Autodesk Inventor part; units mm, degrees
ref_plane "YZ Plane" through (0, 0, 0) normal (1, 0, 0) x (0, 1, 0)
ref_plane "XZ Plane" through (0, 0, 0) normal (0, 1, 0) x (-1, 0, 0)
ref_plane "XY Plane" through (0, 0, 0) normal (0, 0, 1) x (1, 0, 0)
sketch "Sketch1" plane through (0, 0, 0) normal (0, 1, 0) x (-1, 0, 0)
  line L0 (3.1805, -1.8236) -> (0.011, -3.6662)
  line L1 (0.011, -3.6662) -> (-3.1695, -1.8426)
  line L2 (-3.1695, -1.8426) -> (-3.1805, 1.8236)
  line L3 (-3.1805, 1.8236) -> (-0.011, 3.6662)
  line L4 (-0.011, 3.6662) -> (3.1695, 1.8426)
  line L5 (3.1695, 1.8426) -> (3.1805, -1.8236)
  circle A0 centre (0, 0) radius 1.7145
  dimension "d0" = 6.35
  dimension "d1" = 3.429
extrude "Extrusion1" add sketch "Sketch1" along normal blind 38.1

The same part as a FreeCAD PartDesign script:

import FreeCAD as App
import Part
import Sketcher

V = App.Vector
Q = App.Units.Quantity


def add_polygon(sketch, points):
    """Adds a closed chain of lines whose ends are joined by coincident constraints."""
    first, n = sketch.GeometryCount, len(points)
    for a, b in zip(points, points[1:] + points[:1]):
        sketch.addGeometry(Part.LineSegment(App.Vector(*a, 0), App.Vector(*b, 0)), False)
    for i in range(n):
        sketch.addConstraint(Sketcher.Constraint("Coincident", first + i, 2, first + (i + 1) % n, 1))

doc = App.newDocument("Part")
body = doc.addObject("PartDesign::Body", "Body")

# Sketch on XZ plane
sketch1 = body.newObject("Sketcher::SketchObject", "Sketch")
sketch1.AttachmentSupport = (doc.getObject("XZ_Plane"), [""])
sketch1.MapMode = "FlatFace"
add_polygon(sketch1, [(-0.011, -3.6662), (-3.1805, -1.8236), (-3.1695, 1.8426), (0.011, 3.6662), (3.1805, 1.8236), (3.1695, -1.8426)])  # lines 0-5
sketch1.addGeometry(Part.Circle(V(0, 0, 0), V(0, 0, 1), 1.7145), False)  # 6
sketch1.addConstraint(Sketcher.Constraint("Coincident", 6, 3, -1, 1))
sketch1.addConstraint(Sketcher.Constraint("Symmetric", 0, 2, 3, 2, -1, 1))
sketch1.addConstraint(Sketcher.Constraint("Symmetric", 1, 2, 4, 2, -1, 1))
sketch1.addConstraint(Sketcher.Constraint("Symmetric", 2, 2, 5, 2, -1, 1))
sketch1.addConstraint(Sketcher.Constraint("Equal", 0, 1))
sketch1.addConstraint(Sketcher.Constraint("Equal", 1, 2))
sketch1.addConstraint(Sketcher.Constraint("Diameter", 6, Q("0.135 in")))
sketch1.addConstraint(Sketcher.Constraint("DistanceX", 1, 2, 3, 2, Q("0.25 in")))
sketch1.addConstraint(Sketcher.Constraint("DistanceY", 0, 2, -1, 1, Q("0.0718 in")))
sketch1.addConstraint(Sketcher.Constraint("DistanceY", 1, 2, 2, 2, Q("0.0718 in")))
sketch1.addConstraint(Sketcher.Constraint("DistanceX", 0, 2, -1, 1, 3.1805))
pad1 = body.newObject("PartDesign::Pad", "Pad")
pad1.Profile = sketch1
pad1.Length = Q("1.5 in")
pad1.Reversed = True

doc.recompute()
